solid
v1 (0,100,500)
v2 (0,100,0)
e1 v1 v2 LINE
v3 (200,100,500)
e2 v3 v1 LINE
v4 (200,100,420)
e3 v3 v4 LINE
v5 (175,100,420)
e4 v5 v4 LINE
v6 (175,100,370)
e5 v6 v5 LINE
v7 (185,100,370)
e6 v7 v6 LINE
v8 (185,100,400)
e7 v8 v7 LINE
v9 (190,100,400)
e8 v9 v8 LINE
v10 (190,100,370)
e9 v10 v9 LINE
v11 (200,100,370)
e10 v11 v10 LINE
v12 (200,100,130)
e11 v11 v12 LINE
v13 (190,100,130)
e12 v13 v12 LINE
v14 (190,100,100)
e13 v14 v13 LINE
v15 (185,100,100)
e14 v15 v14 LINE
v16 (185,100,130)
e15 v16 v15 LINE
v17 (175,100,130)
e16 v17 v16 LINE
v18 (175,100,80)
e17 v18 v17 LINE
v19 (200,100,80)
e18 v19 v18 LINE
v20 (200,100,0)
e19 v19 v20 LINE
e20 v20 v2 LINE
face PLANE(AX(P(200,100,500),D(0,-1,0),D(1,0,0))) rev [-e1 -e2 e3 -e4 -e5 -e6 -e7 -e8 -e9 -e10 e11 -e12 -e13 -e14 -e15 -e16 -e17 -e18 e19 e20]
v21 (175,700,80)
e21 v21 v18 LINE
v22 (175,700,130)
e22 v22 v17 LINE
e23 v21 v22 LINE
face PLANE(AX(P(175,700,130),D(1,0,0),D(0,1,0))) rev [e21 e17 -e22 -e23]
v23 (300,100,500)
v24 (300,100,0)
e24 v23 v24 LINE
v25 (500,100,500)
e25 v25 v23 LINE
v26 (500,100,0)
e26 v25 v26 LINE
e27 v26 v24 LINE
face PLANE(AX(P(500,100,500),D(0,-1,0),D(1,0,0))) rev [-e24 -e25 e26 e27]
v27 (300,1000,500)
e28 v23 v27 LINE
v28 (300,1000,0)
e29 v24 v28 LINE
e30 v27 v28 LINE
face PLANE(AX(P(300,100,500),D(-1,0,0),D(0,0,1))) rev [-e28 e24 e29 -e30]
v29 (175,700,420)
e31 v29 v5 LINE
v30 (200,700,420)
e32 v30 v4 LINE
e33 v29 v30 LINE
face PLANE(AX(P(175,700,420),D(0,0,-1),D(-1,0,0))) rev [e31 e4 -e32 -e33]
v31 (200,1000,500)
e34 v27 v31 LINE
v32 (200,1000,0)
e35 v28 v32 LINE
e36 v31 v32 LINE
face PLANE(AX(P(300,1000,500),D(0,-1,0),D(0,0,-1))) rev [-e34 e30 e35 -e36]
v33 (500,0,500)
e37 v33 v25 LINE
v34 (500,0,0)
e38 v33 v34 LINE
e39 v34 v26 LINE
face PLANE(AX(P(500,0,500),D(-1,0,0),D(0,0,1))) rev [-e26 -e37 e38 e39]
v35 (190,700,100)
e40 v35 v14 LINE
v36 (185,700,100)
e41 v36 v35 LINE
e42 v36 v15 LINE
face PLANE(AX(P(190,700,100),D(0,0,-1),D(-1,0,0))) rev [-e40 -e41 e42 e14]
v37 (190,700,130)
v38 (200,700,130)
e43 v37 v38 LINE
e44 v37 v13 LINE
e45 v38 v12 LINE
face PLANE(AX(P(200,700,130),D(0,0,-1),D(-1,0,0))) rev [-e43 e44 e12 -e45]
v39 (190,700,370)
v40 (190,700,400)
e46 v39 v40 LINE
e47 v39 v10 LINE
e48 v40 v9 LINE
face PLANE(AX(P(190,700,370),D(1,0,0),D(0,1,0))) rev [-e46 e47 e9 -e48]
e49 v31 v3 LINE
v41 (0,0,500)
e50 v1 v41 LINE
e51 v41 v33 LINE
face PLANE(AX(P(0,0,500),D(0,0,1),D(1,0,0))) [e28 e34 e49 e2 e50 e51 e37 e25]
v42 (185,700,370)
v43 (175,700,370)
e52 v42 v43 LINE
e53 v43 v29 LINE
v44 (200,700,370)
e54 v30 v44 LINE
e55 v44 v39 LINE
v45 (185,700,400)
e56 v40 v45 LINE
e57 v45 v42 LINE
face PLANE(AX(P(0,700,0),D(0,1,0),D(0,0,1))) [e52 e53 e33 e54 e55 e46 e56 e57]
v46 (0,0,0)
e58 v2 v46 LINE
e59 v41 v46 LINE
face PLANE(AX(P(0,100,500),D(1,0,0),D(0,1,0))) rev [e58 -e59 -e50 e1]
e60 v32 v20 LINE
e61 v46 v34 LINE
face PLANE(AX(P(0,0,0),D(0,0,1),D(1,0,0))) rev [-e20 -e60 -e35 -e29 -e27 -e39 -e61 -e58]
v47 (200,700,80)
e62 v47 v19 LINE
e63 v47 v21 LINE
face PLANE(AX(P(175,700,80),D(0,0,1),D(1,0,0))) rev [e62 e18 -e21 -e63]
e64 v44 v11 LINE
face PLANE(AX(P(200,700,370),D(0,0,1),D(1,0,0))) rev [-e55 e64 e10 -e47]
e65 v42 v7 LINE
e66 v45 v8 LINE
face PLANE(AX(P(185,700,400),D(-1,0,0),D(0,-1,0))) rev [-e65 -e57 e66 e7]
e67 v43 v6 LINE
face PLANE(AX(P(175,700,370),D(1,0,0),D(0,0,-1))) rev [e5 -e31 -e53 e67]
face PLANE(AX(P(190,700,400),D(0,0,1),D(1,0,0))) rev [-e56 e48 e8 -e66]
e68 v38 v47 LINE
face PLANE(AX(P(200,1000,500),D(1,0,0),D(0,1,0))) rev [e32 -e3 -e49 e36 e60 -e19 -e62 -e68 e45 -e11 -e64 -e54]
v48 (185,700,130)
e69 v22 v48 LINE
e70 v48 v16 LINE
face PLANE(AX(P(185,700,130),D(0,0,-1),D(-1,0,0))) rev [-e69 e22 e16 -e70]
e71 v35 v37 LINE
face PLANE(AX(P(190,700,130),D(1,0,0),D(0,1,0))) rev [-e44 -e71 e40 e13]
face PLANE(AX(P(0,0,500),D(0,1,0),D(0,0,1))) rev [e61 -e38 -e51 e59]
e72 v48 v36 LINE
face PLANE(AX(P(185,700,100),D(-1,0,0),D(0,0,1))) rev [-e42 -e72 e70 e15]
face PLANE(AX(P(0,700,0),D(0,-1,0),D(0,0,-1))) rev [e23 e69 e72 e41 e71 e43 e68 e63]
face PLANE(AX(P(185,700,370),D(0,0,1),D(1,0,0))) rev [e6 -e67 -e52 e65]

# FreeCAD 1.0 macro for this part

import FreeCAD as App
import Part
import Sketcher

V = App.Vector

doc = App.newDocument("Part")
params = doc.addObject("Spreadsheet::Sheet", "Params")
for row, (alias, value) in enumerate([
    ("sketch1_width", "500 mm"),
    ("sketch1_width2", "200 mm"),
    ("sketch1_height", "900 mm"),
    ("pad1_length", "500 mm"),
    ("sketch2_width", "25 mm"),
    ("sketch2_width2", "10 mm"),
    ("sketch2_height", "50 mm"),
    ("sketch2_height2", "30 mm"),
    ("pad2_length", "600 mm"),
], start=1):
    params.set(f"A{row}", alias)
    params.set(f"B{row}", "=" + value)
    params.setAlias(f"B{row}", alias)

body = doc.addObject("PartDesign::Body", "Body")

sketch1 = body.newObject("Sketcher::SketchObject", "Sketch")
sketch1.AttachmentSupport = (doc.getObject("XY_Plane"), [""])
sketch1.MapMode = "FlatFace"
sketch1.addGeometry(Part.LineSegment(V(0, 0, 0), V(500, 0, 0)), False)
sketch1.addGeometry(Part.LineSegment(V(500, 0, 0), V(500, 100, 0)), False)
sketch1.addGeometry(Part.LineSegment(V(500, 100, 0), V(300, 100, 0)), False)
sketch1.addGeometry(Part.LineSegment(V(300, 100, 0), V(300, 1000, 0)), False)
sketch1.addGeometry(Part.LineSegment(V(300, 1000, 0), V(200, 1000, 0)), False)
sketch1.addGeometry(Part.LineSegment(V(200, 1000, 0), V(200, 100, 0)), False)
sketch1.addGeometry(Part.LineSegment(V(200, 100, 0), V(0, 100, 0)), False)
sketch1.addGeometry(Part.LineSegment(V(0, 100, 0), V(0, 0, 0)), False)
sketch1.addConstraint(Sketcher.Constraint("Coincident", 0, 2, 1, 1))
sketch1.addConstraint(Sketcher.Constraint("Coincident", 1, 2, 2, 1))
sketch1.addConstraint(Sketcher.Constraint("Coincident", 2, 2, 3, 1))
sketch1.addConstraint(Sketcher.Constraint("Coincident", 3, 2, 4, 1))
sketch1.addConstraint(Sketcher.Constraint("Coincident", 4, 2, 5, 1))
sketch1.addConstraint(Sketcher.Constraint("Coincident", 5, 2, 6, 1))
sketch1.addConstraint(Sketcher.Constraint("Coincident", 6, 2, 7, 1))
sketch1.addConstraint(Sketcher.Constraint("Coincident", 7, 2, 0, 1))
sketch1.addConstraint(Sketcher.Constraint("Horizontal", 0))
sketch1.addConstraint(Sketcher.Constraint("Vertical", 1))
sketch1.addConstraint(Sketcher.Constraint("Horizontal", 2))
sketch1.addConstraint(Sketcher.Constraint("Vertical", 3))
sketch1.addConstraint(Sketcher.Constraint("Horizontal", 4))
sketch1.addConstraint(Sketcher.Constraint("Vertical", 5))
sketch1.addConstraint(Sketcher.Constraint("Horizontal", 6))
sketch1.addConstraint(Sketcher.Constraint("Vertical", 7))
sketch1.addConstraint(Sketcher.Constraint("Coincident", 7, 2, -1, 1))
sketch1.addConstraint(Sketcher.Constraint("Horizontal", 2, 2, 5, 2))
sketch1.addConstraint(Sketcher.Constraint("Equal", 2, 6))
sketch1.addConstraint(Sketcher.Constraint("Equal", 4, 1))
sketch1.addConstraint(Sketcher.Constraint("DistanceX", 0, 1, 0, 2, 500.0))
sketch1.addConstraint(Sketcher.Constraint("DistanceX", 2, 2, 2, 1, 200.0))
sketch1.addConstraint(Sketcher.Constraint("DistanceY", 3, 1, 3, 2, 900.0))
sketch1.setExpression("Constraints[20]", "Params.sketch1_width")
sketch1.setExpression("Constraints[21]", "Params.sketch1_width2")
sketch1.setExpression("Constraints[22]", "Params.sketch1_height")
pad1 = body.newObject("PartDesign::Pad", "Pad")
pad1.Profile = sketch1
pad1.setExpression("Length", "Params.pad1_length")

sketch2 = body.newObject("Sketcher::SketchObject", "Sketch001")
sketch2.AttachmentSupport = (doc.getObject("XZ_Plane"), [""])
sketch2.MapMode = "FlatFace"
sketch2.AttachmentOffset = App.Placement(V(0, 0, -100), App.Rotation())
sketch2.addGeometry(Part.LineSegment(V(200, 130, 0), V(200, 80, 0)), False)
sketch2.addGeometry(Part.LineSegment(V(200, 80, 0), V(175, 80, 0)), False)
sketch2.addGeometry(Part.LineSegment(V(175, 80, 0), V(175, 130, 0)), False)
sketch2.addGeometry(Part.LineSegment(V(175, 130, 0), V(185, 130, 0)), False)
sketch2.addGeometry(Part.LineSegment(V(185, 130, 0), V(185, 100, 0)), False)
sketch2.addGeometry(Part.LineSegment(V(185, 100, 0), V(190, 100, 0)), False)
sketch2.addGeometry(Part.LineSegment(V(190, 100, 0), V(190, 130, 0)), False)
sketch2.addGeometry(Part.LineSegment(V(190, 130, 0), V(200, 130, 0)), False)
sketch2.addGeometry(Part.LineSegment(V(175, 370, 0), V(175, 420, 0)), False)
sketch2.addGeometry(Part.LineSegment(V(175, 420, 0), V(200, 420, 0)), False)
sketch2.addGeometry(Part.LineSegment(V(200, 420, 0), V(200, 370, 0)), False)
sketch2.addGeometry(Part.LineSegment(V(200, 370, 0), V(190, 370, 0)), False)
sketch2.addGeometry(Part.LineSegment(V(190, 370, 0), V(190, 400, 0)), False)
sketch2.addGeometry(Part.LineSegment(V(190, 400, 0), V(185, 400, 0)), False)
sketch2.addGeometry(Part.LineSegment(V(185, 400, 0), V(185, 370, 0)), False)
sketch2.addGeometry(Part.LineSegment(V(185, 370, 0), V(175, 370, 0)), False)
sketch2.addConstraint(Sketcher.Constraint("Coincident", 0, 2, 1, 1))
sketch2.addConstraint(Sketcher.Constraint("Coincident", 1, 2, 2, 1))
sketch2.addConstraint(Sketcher.Constraint("Coincident", 2, 2, 3, 1))
sketch2.addConstraint(Sketcher.Constraint("Coincident", 3, 2, 4, 1))
sketch2.addConstraint(Sketcher.Constraint("Coincident", 4, 2, 5, 1))
sketch2.addConstraint(Sketcher.Constraint("Coincident", 5, 2, 6, 1))
sketch2.addConstraint(Sketcher.Constraint("Coincident", 6, 2, 7, 1))
sketch2.addConstraint(Sketcher.Constraint("Coincident", 7, 2, 0, 1))
sketch2.addConstraint(Sketcher.Constraint("Coincident", 8, 2, 9, 1))
sketch2.addConstraint(Sketcher.Constraint("Coincident", 9, 2, 10, 1))
sketch2.addConstraint(Sketcher.Constraint("Coincident", 10, 2, 11, 1))
sketch2.addConstraint(Sketcher.Constraint("Coincident", 11, 2, 12, 1))
sketch2.addConstraint(Sketcher.Constraint("Coincident", 12, 2, 13, 1))
sketch2.addConstraint(Sketcher.Constraint("Coincident", 13, 2, 14, 1))
sketch2.addConstraint(Sketcher.Constraint("Coincident", 14, 2, 15, 1))
sketch2.addConstraint(Sketcher.Constraint("Coincident", 15, 2, 8, 1))
sketch2.addConstraint(Sketcher.Constraint("Vertical", 0))
sketch2.addConstraint(Sketcher.Constraint("Horizontal", 1))
sketch2.addConstraint(Sketcher.Constraint("Vertical", 2))
sketch2.addConstraint(Sketcher.Constraint("Horizontal", 3))
sketch2.addConstraint(Sketcher.Constraint("Vertical", 4))
sketch2.addConstraint(Sketcher.Constraint("Horizontal", 5))
sketch2.addConstraint(Sketcher.Constraint("Vertical", 6))
sketch2.addConstraint(Sketcher.Constraint("Horizontal", 7))
sketch2.addConstraint(Sketcher.Constraint("Vertical", 8))
sketch2.addConstraint(Sketcher.Constraint("Horizontal", 9))
sketch2.addConstraint(Sketcher.Constraint("Vertical", 10))
sketch2.addConstraint(Sketcher.Constraint("Horizontal", 11))
sketch2.addConstraint(Sketcher.Constraint("Vertical", 12))
sketch2.addConstraint(Sketcher.Constraint("Horizontal", 13))
sketch2.addConstraint(Sketcher.Constraint("Vertical", 14))
sketch2.addConstraint(Sketcher.Constraint("Horizontal", 15))
sketch2.addConstraint(Sketcher.Constraint("Horizontal", 3, 2, 6, 2))
sketch2.addConstraint(Sketcher.Constraint("Horizontal", 11, 2, 14, 2))
sketch2.addConstraint(Sketcher.Constraint("Vertical", 2, 2, 8, 2))
sketch2.addConstraint(Sketcher.Constraint("Vertical", 7, 2, 9, 2))
sketch2.addConstraint(Sketcher.Constraint("Vertical", 6, 2, 11, 2))
sketch2.addConstraint(Sketcher.Constraint("Vertical", 4, 2, 13, 2))
sketch2.addConstraint(Sketcher.Constraint("Equal", 3, 7))
sketch2.addConstraint(Sketcher.Constraint("Equal", 2, 8))
sketch2.addConstraint(Sketcher.Constraint("Equal", 6, 12))
sketch2.addConstraint(Sketcher.Constraint("DistanceX", 1, 2, 1, 1, 25.0))
sketch2.addConstraint(Sketcher.Constraint("DistanceX", 3, 1, 3, 2, 10.0))
sketch2.addConstraint(Sketcher.Constraint("DistanceY", 0, 2, 0, 1, 50.0))
sketch2.addConstraint(Sketcher.Constraint("DistanceY", 4, 2, 4, 1, 30.0))
sketch2.addConstraint(Sketcher.Constraint("DistanceX", -1, 1, 0, 2, 200.0))
sketch2.addConstraint(Sketcher.Constraint("DistanceY", -1, 1, 0, 2, 80.0))
sketch2.addConstraint(Sketcher.Constraint("DistanceY", -1, 1, 8, 2, 420.0))
sketch2.setExpression("Constraints[41]", "Params.sketch2_width")
sketch2.setExpression("Constraints[42]", "Params.sketch2_width2")
sketch2.setExpression("Constraints[43]", "Params.sketch2_height")
sketch2.setExpression("Constraints[44]", "Params.sketch2_height2")
pad2 = body.newObject("PartDesign::Pad", "Pad001")
pad2.Profile = sketch2
pad2.setExpression("Length", "Params.pad2_length")
pad2.Reversed = True

doc.recompute()
